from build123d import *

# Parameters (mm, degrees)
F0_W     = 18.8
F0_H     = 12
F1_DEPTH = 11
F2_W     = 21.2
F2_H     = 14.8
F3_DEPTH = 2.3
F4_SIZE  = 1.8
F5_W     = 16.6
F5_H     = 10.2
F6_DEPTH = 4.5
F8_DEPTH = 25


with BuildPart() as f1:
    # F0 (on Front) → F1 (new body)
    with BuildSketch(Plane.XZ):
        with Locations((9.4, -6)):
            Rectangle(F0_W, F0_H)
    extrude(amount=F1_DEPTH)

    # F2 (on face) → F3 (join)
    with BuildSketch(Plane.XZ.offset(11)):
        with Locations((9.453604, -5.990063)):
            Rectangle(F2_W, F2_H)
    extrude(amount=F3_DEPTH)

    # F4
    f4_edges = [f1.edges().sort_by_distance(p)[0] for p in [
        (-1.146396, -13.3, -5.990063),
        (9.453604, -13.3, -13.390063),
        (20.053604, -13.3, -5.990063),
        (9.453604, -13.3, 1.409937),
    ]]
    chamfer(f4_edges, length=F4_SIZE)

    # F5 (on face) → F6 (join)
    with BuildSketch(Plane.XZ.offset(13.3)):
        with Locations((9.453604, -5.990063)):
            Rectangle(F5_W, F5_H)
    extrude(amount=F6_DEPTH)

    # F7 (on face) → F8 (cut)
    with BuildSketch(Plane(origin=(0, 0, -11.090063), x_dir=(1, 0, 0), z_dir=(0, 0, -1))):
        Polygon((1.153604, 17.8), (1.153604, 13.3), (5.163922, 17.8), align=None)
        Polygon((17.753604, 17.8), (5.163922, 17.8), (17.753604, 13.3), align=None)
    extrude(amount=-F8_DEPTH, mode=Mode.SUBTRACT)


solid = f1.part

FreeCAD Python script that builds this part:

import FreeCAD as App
import Part
import Sketcher

V = App.Vector
Q = App.Units.Quantity


def edges_at(feature, points):
    """Names of the edges that pass closest to the given points."""
    edges = feature.Shape.Edges
    near = lambda p: min(range(len(edges)), key=lambda i: edges[i].distToShape(Part.Vertex(*p))[0])
    return sorted({f"Edge{near(p) + 1}" for p in points})

doc = App.newDocument("Part")
params = doc.addObject("Spreadsheet::Sheet", "Params")
for row, (alias, value) in enumerate([
    ("sketch1_height", "12 mm"),
    ("sketch1_width", "18.8 mm"),
    ("pad1_length", "11 mm"),
    ("sketch2_width", "21.2 mm"),
    ("sketch2_height", "14.8 mm"),
    ("pad2_length", "2.3 mm"),
    ("chamfer_size", "1.8 mm"),
    ("sketch3_width", "16.6 mm"),
    ("sketch3_height", "10.2 mm"),
    ("pad3_length", "4.5 mm"),
    ("sketch4_height", "4.5 mm"),
    ("pocket1_length", "25 mm"),
], start=1):
    params.set(f"A{row}", alias)
    params.set(f"B{row}", "=" + value)
    params.setAlias(f"B{row}", alias)

body = doc.addObject("PartDesign::Body", "Body")

# Sketch on XZ plane
sketch1 = body.newObject("Sketcher::SketchObject", "Sketch")
sketch1.AttachmentSupport = (doc.getObject("XZ_Plane"), [""])
sketch1.MapMode = "FlatFace"
sketch1.addGeometry([
    Part.LineSegment(V(0, 0, 0), V(0, -12, 0)),
    Part.LineSegment(V(0, -12, 0), V(19, -12, 0)),
    Part.LineSegment(V(19, -12, 0), V(19, 0, 0)),
    Part.LineSegment(V(19, 0, 0), V(0, 0, 0)),
], False)
sketch1.addConstraint([
    Sketcher.Constraint("Coincident", 0, 2, 1, 1),
    Sketcher.Constraint("Coincident", 1, 2, 2, 1),
    Sketcher.Constraint("Coincident", 2, 2, 3, 1),
    Sketcher.Constraint("Coincident", 3, 2, 0, 1),
    Sketcher.Constraint("Vertical", 0),
    Sketcher.Constraint("Horizontal", 1),
    Sketcher.Constraint("Vertical", 2),
    Sketcher.Constraint("Horizontal", 3),
    Sketcher.Constraint("Coincident", 3, 2, -1, 1),
    Sketcher.Constraint("DistanceY", 0, 2, 0, 1, Q("12 mm")),
    Sketcher.Constraint("DistanceX", 1, 1, 1, 2, Q("18.8 mm")),
])
sketch1.setExpression("Constraints[9]", "Params.sketch1_height")
sketch1.setExpression("Constraints[10]", "Params.sketch1_width")
pad1 = body.newObject("PartDesign::Pad", "Pad")
pad1.Profile = sketch1
pad1.setExpression("Length", "Params.pad1_length")

# Sketch on XZ plane
sketch2 = body.newObject("Sketcher::SketchObject", "Sketch001")
sketch2.AttachmentSupport = (doc.getObject("XZ_Plane"), [""])
sketch2.MapMode = "FlatFace"
sketch2.AttachmentOffset = App.Placement(V(0, 0, 11), App.Rotation())
sketch2.addGeometry([
    Part.LineSegment(V(-1, 1, 0), V(-1, -13, 0)),
    Part.LineSegment(V(-1, -13, 0), V(20, -13, 0)),
    Part.LineSegment(V(20, -13, 0), V(20, 1, 0)),
    Part.LineSegment(V(20, 1, 0), V(-1, 1, 0)),
], False)
sketch2.addConstraint([
    Sketcher.Constraint("Coincident", 0, 2, 1, 1),
    Sketcher.Constraint("Coincident", 1, 2, 2, 1),
    Sketcher.Constraint("Coincident", 2, 2, 3, 1),
    Sketcher.Constraint("Coincident", 3, 2, 0, 1),
    Sketcher.Constraint("Vertical", 0),
    Sketcher.Constraint("Horizontal", 1),
    Sketcher.Constraint("Vertical", 2),
    Sketcher.Constraint("Horizontal", 3),
    Sketcher.Constraint("DistanceX", 1, 1, 1, 2, Q("21.2 mm")),
    Sketcher.Constraint("DistanceY", 0, 2, 0, 1, Q("14.8 mm")),
    Sketcher.Constraint("DistanceX", 0, 2, -1, 1, Q("1.146396 mm")),
    Sketcher.Constraint("DistanceY", 0, 2, -1, 1, Q("13.390063 mm")),
])
sketch2.setExpression("Constraints[8]", "Params.sketch2_width")
sketch2.setExpression("Constraints[9]", "Params.sketch2_height")
pad2 = body.newObject("PartDesign::Pad", "Pad001")
pad2.Profile = sketch2
pad2.setExpression("Length", "Params.pad2_length")
doc.recompute()

chamfer = body.newObject("PartDesign::Chamfer", "Chamfer")
chamfer.Base = (pad2, edges_at(pad2, [
    (-1.146, -13.3, -5.99),
    (9.454, -13.3, -13.39),
    (20.054, -13.3, -5.99),
    (9.454, -13.3, 1.41),
]))
chamfer.setExpression("Size", "Params.chamfer_size")

# Sketch on XZ plane
sketch3 = body.newObject("Sketcher::SketchObject", "Sketch002")
sketch3.AttachmentSupport = (doc.getObject("XZ_Plane"), [""])
sketch3.MapMode = "FlatFace"
sketch3.AttachmentOffset = App.Placement(V(0, 0, 13.3), App.Rotation())
sketch3.addGeometry([
    Part.LineSegment(V(1, -1, 0), V(1, -11, 0)),
    Part.LineSegment(V(1, -11, 0), V(18, -11, 0)),
    Part.LineSegment(V(18, -11, 0), V(18, -1, 0)),
    Part.LineSegment(V(18, -1, 0), V(1, -1, 0)),
], False)
sketch3.addConstraint([
    Sketcher.Constraint("Coincident", 0, 2, 1, 1),
    Sketcher.Constraint("Coincident", 1, 2, 2, 1),
    Sketcher.Constraint("Coincident", 2, 2, 3, 1),
    Sketcher.Constraint("Coincident", 3, 2, 0, 1),
    Sketcher.Constraint("Vertical", 0),
    Sketcher.Constraint("Horizontal", 1),
    Sketcher.Constraint("Vertical", 2),
    Sketcher.Constraint("Horizontal", 3),
    Sketcher.Constraint("DistanceX", 1, 1, 1, 2, Q("16.6 mm")),
    Sketcher.Constraint("DistanceY", 0, 2, 0, 1, Q("10.2 mm")),
    Sketcher.Constraint("DistanceX", -1, 1, 0, 2, Q("1.153604 mm")),
    Sketcher.Constraint("DistanceY", 0, 2, -1, 1, Q("11.090063 mm")),
])
sketch3.setExpression("Constraints[8]", "Params.sketch3_width")
sketch3.setExpression("Constraints[9]", "Params.sketch3_height")
pad3 = body.newObject("PartDesign::Pad", "Pad002")
pad3.Profile = sketch3
pad3.setExpression("Length", "Params.pad3_length")

# Sketch on XY plane
sketch4 = body.newObject("Sketcher::SketchObject", "Sketch003")
sketch4.AttachmentSupport = (doc.getObject("XY_Plane"), [""])
sketch4.MapMode = "FlatFace"
sketch4.AttachmentOffset = App.Placement(V(0, 0, -11.090063), App.Rotation())
sketch4.addGeometry([
    Part.LineSegment(V(1.2, -17.8, 0), V(1.2, -13.3, 0)),  # 0
    Part.LineSegment(V(1.2, -13.3, 0), V(5.2, -17.8, 0)),  # 1
    Part.LineSegment(V(5.2, -17.8, 0), V(1.2, -17.8, 0)),  # 2
    Part.LineSegment(V(17.8, -17.8, 0), V(5.2, -17.8, 0)),  # 3
    Part.LineSegment(V(5.2, -17.8, 0), V(17.8, -13.3, 0)),  # 4
    Part.LineSegment(V(17.8, -13.3, 0), V(17.8, -17.8, 0)),  # 5
], False)
sketch4.addConstraint([
    Sketcher.Constraint("Coincident", 0, 2, 1, 1),
    Sketcher.Constraint("Coincident", 1, 2, 2, 1),
    Sketcher.Constraint("Coincident", 2, 2, 0, 1),
    Sketcher.Constraint("Coincident", 3, 2, 4, 1),
    Sketcher.Constraint("Coincident", 4, 2, 5, 1),
    Sketcher.Constraint("Coincident", 5, 2, 3, 1),
    Sketcher.Constraint("Vertical", 0),
    Sketcher.Constraint("Horizontal", 2),
    Sketcher.Constraint("Horizontal", 3),
    Sketcher.Constraint("Vertical", 5),
    Sketcher.Constraint("Coincident", 3, 2, 1, 2),
    Sketcher.Constraint("Horizontal", 0, 2, 4, 2),
    Sketcher.Constraint("DistanceY", 0, 1, 0, 2, Q("4.5 mm")),
    Sketcher.Constraint("DistanceY", 0, 2, -1, 1, Q("13.3 mm")),
    Sketcher.Constraint("DistanceX", 0, 2, 4, 2, Q("16.6 mm")),
    Sketcher.Constraint("DistanceX", 2, 2, 2, 1, Q("4.010318 mm")),
    Sketcher.Constraint("DistanceX", -1, 1, 0, 2, Q("1.153604 mm")),
])
sketch4.setExpression("Constraints[12]", "Params.sketch4_height")
pocket1 = body.newObject("PartDesign::Pocket", "Pocket")
pocket1.Profile = sketch4
pocket1.setExpression("Length", "Params.pocket1_length")
pocket1.Reversed = True

doc.recompute()
